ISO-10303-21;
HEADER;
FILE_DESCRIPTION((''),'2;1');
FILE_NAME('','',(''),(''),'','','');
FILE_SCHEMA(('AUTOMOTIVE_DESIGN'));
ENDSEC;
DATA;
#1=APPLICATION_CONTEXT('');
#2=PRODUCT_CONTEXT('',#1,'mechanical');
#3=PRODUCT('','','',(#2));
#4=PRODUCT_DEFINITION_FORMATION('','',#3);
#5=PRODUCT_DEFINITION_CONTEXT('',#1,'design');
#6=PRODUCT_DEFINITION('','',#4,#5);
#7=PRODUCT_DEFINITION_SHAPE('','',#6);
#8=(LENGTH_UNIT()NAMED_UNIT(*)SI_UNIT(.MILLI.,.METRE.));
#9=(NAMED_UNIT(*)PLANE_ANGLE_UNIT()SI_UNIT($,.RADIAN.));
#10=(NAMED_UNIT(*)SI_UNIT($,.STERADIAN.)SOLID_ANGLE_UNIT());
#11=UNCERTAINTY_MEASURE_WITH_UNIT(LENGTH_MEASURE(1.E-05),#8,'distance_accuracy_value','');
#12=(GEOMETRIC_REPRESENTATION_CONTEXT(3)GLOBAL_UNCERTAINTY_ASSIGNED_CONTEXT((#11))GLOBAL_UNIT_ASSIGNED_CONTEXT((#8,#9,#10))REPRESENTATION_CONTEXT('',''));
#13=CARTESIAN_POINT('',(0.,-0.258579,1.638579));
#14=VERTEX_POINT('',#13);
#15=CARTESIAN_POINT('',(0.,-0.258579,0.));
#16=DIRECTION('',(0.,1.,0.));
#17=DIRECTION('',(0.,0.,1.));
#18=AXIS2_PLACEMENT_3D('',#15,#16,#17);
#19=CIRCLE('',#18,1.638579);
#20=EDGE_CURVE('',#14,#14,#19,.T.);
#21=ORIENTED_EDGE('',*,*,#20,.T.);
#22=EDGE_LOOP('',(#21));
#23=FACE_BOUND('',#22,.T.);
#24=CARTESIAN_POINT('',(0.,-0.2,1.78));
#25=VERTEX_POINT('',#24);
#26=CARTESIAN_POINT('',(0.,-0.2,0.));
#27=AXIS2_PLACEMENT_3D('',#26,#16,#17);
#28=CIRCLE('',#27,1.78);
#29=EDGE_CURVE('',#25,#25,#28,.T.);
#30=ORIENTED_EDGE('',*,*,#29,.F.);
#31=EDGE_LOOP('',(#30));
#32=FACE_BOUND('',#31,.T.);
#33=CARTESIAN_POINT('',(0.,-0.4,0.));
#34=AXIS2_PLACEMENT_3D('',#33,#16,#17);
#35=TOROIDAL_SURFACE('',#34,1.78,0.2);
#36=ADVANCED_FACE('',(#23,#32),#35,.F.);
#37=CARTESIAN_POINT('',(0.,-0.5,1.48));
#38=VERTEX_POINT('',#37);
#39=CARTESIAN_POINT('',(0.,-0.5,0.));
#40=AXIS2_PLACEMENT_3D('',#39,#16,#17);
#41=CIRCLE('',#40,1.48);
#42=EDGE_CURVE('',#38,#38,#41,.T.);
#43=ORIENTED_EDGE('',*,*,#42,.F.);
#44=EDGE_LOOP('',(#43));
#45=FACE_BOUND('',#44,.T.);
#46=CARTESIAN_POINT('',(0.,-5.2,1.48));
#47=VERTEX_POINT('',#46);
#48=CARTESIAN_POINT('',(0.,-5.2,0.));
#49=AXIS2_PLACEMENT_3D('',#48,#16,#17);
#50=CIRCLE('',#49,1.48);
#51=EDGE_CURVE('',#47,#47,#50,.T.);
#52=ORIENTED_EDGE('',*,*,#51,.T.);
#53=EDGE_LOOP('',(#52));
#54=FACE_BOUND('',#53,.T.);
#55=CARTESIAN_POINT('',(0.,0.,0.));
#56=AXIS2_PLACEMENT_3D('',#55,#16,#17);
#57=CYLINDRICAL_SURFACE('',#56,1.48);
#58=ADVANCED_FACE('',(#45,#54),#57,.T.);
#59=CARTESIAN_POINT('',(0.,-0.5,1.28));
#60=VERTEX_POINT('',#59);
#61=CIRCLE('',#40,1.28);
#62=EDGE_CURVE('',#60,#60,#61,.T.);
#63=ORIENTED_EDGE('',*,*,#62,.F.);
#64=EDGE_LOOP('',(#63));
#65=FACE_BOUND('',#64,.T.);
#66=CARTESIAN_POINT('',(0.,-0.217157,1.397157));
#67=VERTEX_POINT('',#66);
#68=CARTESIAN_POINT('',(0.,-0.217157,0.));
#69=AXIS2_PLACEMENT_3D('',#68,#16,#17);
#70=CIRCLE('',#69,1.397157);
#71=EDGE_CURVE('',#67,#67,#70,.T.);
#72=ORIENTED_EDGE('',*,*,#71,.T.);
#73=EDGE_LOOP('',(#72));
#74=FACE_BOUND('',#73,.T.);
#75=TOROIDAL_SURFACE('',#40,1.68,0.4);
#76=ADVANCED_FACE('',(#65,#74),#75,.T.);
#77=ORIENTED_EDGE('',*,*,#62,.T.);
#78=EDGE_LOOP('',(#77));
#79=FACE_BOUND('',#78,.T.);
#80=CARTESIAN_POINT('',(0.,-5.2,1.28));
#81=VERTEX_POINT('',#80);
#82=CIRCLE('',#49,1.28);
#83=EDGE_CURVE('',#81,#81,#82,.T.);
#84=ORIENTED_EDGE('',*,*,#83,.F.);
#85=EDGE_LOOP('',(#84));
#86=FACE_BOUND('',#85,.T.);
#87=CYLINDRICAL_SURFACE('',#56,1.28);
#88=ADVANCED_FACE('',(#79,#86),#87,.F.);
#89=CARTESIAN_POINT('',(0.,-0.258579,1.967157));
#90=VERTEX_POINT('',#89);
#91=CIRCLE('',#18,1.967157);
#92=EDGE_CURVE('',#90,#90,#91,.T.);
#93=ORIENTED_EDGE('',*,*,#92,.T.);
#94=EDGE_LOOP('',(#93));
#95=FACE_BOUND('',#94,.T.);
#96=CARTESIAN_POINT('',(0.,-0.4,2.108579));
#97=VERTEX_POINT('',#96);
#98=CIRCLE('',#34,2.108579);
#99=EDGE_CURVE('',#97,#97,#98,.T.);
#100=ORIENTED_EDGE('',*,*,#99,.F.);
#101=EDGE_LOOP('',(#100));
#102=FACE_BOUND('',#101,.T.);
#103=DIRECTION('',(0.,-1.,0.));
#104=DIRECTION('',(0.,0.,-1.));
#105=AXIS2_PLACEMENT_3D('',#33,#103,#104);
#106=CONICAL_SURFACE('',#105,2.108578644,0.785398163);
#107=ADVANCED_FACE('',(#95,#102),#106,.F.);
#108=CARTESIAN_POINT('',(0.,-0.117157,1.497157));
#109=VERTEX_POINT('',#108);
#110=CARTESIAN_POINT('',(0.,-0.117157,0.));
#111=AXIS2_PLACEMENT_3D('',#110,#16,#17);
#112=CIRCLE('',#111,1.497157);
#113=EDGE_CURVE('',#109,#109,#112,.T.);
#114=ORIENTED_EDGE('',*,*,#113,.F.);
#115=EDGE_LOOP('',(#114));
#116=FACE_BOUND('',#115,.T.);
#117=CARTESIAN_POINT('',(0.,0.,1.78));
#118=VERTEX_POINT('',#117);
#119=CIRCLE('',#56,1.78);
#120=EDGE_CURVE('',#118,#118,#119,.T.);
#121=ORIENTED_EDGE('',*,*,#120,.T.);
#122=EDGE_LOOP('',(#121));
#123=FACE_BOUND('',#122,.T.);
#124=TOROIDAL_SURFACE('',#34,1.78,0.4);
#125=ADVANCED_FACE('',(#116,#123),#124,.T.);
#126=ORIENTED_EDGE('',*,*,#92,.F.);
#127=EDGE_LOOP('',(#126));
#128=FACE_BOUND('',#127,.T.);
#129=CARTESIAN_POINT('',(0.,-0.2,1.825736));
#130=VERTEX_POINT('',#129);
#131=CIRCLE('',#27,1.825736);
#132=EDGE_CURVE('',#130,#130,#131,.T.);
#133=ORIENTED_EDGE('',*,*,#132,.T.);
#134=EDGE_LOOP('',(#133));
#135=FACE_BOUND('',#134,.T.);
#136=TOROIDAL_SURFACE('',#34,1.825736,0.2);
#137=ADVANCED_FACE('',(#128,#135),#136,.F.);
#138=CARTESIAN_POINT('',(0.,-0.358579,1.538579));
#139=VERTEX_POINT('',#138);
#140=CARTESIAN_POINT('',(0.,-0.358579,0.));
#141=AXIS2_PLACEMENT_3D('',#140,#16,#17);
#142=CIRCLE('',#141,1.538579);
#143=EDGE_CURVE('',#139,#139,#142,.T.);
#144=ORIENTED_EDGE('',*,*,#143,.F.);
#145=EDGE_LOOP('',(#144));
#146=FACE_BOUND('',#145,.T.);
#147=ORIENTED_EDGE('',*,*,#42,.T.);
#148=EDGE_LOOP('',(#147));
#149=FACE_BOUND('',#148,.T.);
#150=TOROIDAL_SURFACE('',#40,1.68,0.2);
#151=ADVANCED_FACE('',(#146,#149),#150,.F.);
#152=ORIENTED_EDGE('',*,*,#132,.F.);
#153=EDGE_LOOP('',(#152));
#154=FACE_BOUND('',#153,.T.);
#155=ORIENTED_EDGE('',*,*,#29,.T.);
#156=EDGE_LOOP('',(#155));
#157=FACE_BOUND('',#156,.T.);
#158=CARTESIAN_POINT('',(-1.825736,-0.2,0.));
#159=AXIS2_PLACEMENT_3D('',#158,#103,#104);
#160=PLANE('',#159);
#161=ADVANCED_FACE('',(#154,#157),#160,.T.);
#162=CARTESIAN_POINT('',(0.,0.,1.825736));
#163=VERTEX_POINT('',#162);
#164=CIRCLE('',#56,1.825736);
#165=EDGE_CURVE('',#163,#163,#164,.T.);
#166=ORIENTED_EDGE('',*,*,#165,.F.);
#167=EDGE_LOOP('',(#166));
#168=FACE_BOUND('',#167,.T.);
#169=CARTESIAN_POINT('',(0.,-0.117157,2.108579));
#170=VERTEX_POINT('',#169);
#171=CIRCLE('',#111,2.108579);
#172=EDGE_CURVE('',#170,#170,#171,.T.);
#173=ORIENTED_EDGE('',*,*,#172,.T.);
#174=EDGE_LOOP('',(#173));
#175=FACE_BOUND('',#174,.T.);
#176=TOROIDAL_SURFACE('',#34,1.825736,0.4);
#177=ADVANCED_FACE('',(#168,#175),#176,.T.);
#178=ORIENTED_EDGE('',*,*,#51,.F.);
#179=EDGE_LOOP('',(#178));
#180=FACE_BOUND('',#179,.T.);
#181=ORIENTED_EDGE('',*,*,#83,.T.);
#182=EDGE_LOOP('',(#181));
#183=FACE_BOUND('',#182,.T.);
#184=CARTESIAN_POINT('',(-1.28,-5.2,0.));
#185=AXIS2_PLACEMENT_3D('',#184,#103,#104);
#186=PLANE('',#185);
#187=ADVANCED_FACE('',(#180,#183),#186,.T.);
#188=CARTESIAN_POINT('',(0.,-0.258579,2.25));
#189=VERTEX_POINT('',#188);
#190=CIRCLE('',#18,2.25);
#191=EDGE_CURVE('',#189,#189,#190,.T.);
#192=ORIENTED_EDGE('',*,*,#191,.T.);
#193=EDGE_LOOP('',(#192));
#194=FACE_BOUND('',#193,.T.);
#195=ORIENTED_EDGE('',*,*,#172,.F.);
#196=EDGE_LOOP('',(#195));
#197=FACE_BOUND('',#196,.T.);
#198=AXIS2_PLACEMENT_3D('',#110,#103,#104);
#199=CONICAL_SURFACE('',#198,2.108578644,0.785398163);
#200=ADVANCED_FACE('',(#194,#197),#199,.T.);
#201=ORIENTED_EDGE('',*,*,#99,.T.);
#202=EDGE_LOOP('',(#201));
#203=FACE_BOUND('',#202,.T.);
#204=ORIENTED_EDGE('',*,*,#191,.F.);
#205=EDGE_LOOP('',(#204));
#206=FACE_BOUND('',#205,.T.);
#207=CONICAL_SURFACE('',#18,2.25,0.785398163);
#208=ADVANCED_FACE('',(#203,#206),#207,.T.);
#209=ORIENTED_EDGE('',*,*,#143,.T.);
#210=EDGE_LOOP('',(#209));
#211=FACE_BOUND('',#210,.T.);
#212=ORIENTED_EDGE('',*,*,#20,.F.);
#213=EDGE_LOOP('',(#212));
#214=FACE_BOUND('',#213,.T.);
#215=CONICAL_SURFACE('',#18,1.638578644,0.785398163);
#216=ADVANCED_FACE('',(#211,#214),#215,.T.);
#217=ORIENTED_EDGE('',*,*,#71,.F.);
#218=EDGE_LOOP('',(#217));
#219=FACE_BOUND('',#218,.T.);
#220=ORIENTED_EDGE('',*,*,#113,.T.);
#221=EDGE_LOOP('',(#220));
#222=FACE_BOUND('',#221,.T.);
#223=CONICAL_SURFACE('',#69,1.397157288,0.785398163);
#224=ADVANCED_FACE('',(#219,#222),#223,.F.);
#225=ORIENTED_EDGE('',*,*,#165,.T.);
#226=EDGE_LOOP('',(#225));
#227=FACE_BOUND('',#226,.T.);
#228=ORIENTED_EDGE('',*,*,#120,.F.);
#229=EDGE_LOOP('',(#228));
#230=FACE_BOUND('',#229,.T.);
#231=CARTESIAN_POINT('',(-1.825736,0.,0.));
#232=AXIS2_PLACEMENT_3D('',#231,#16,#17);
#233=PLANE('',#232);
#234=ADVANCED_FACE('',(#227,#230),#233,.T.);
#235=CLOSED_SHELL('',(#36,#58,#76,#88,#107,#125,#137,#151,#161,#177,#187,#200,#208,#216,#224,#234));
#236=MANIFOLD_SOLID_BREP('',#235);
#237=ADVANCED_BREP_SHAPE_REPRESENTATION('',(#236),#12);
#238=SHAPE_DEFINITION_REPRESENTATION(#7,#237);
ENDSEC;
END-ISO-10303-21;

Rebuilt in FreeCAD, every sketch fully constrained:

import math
import FreeCAD as App
import Part
import Sketcher

V = App.Vector

doc = App.newDocument("Part")
body = doc.addObject("PartDesign::Body", "Body")

# Sketch on XY plane
sketch1 = body.newObject("Sketcher::SketchObject", "Sketch")
sketch1.AttachmentSupport = (doc.getObject("XY_Plane"), [""])
sketch1.MapMode = "FlatFace"
sketch1.addGeometry([
    Part.LineSegment(V(-1.397, -0.217, 0), V(-1.497, -0.117, 0)),  # 0
    Part.ArcOfCircle(Part.Circle(V(-1.78, -0.4, 0), V(0, 0, 1), 0.4), math.radians(45), math.radians(90)),  # 1
    Part.LineSegment(V(-1.78, 0, 0), V(-1.826, 0, 0)),  # 2
    Part.ArcOfCircle(Part.Circle(V(-1.826, -0.4, 0), V(0, 0, 1), 0.4), math.radians(90), math.radians(135)),  # 3
    Part.LineSegment(V(-2.109, -0.117, 0), V(-2.25, -0.259, 0)),  # 4
    Part.LineSegment(V(-2.25, -0.259, 0), V(-2.109, -0.4, 0)),  # 5
    Part.LineSegment(V(-2.109, -0.4, 0), V(-1.967, -0.259, 0)),  # 6
    Part.ArcOfCircle(Part.Circle(V(-1.826, -0.4, 0), V(0, 0, 1), 0.2), math.radians(90), math.radians(135)),  # 7
    Part.LineSegment(V(-1.826, -0.2, 0), V(-1.78, -0.2, 0)),  # 8
    Part.ArcOfCircle(Part.Circle(V(-1.78, -0.4, 0), V(0, 0, 1), 0.2), math.radians(45), math.radians(90)),  # 9
    Part.LineSegment(V(-1.639, -0.259, 0), V(-1.539, -0.359, 0)),  # 10
    Part.ArcOfCircle(Part.Circle(V(-1.68, -0.5, 0), V(0, 0, 1), 0.2), math.radians(0), math.radians(45)),  # 11
    Part.LineSegment(V(-1.48, -0.5, 0), V(-1.48, -5.2, 0)),  # 12
    Part.LineSegment(V(-1.48, -5.2, 0), V(-1.28, -5.2, 0)),  # 13
    Part.LineSegment(V(-1.28, -5.2, 0), V(-1.28, -0.5, 0)),  # 14
    Part.ArcOfCircle(Part.Circle(V(-1.68, -0.5, 0), V(0, 0, 1), 0.4), math.radians(0), math.radians(45)),  # 15
], False)
sketch1.addConstraint([
    Sketcher.Constraint("Tangent", 0, 2, 1, 1),
    Sketcher.Constraint("Tangent", 1, 2, 2, 1),
    Sketcher.Constraint("Tangent", 2, 2, 3, 1),
    Sketcher.Constraint("Tangent", 3, 2, 4, 1),
    Sketcher.Constraint("Coincident", 4, 2, 5, 1),
    Sketcher.Constraint("Coincident", 5, 2, 6, 1),
    Sketcher.Constraint("Tangent", 6, 2, 7, 2),
    Sketcher.Constraint("Tangent", 7, 1, 8, 1),
    Sketcher.Constraint("Tangent", 8, 2, 9, 2),
    Sketcher.Constraint("Tangent", 9, 1, 10, 1),
    Sketcher.Constraint("Tangent", 10, 2, 11, 2),
    Sketcher.Constraint("Tangent", 11, 1, 12, 1),
    Sketcher.Constraint("Coincident", 12, 2, 13, 1),
    Sketcher.Constraint("Coincident", 13, 2, 14, 1),
    Sketcher.Constraint("Tangent", 14, 2, 15, 1),
    Sketcher.Constraint("Tangent", 15, 2, 0, 1),
    Sketcher.Constraint("Horizontal", 2),
    Sketcher.Constraint("Horizontal", 8),
    Sketcher.Constraint("Vertical", 12),
    Sketcher.Constraint("Horizontal", 13),
    Sketcher.Constraint("Vertical", 14),
    Sketcher.Constraint("Coincident", 7, 3, 3, 3),
    Sketcher.Constraint("Coincident", 9, 3, 1, 3),
    Sketcher.Constraint("Coincident", 15, 3, 11, 3),
    Sketcher.Constraint("Equal", 1, 3),
    Sketcher.Constraint("Equal", 9, 11),
    Sketcher.Constraint("Equal", 3, 15),
    Sketcher.Constraint("PointOnObject", 1, 2, -1),
    Sketcher.Constraint("Perpendicular", 0, 4),
    Sketcher.Constraint("Perpendicular", 4, 5),
    Sketcher.Constraint("Perpendicular", 5, 6),
    Sketcher.Constraint("Horizontal", 0, 2, 3, 2),
    Sketcher.Constraint("Horizontal", 9, 3, 5, 2),
    Sketcher.Constraint("Horizontal", 4, 2, 6, 2),
    Sketcher.Constraint("Radius", 1, 0.4),
    Sketcher.Constraint("DistanceY", 12, 2, 12, 1, 4.7),
    Sketcher.Constraint("DistanceY", 11, 3, -1, 1, 0.5),
    Sketcher.Constraint("DistanceX", 1, 3, -1, 1, 1.78),
    Sketcher.Constraint("DistanceX", 4, 2, -1, 1, 2.25),
])
revolution = body.newObject("PartDesign::Revolution", "Revolution")
revolution.Profile = sketch1
revolution.ReferenceAxis = (sketch1, ["V_Axis"])
revolution.Angle = 360

doc.recompute()
